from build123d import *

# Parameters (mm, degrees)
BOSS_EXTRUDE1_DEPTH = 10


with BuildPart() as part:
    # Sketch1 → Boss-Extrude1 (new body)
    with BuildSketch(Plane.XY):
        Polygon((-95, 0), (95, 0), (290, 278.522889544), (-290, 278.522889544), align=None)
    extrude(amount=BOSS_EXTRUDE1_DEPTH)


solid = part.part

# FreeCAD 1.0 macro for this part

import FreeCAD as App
import Part
import Sketcher
from FreeCAD import Vector

doc = App.newDocument("Part")
body = doc.addObject("PartDesign::Body", "Body")

# Sketch on XY plane
sketch1 = doc.addObject("Sketcher::SketchObject", "Sketch")
body.addObject(sketch1)
sketch1.AttachmentSupport = (doc.XY_Plane, [""])
sketch1.MapMode = "FlatFace"
sketch1.addGeometry(Part.LineSegment(Vector(-95, 0, 0), Vector(95, 0, 0)), False)
sketch1.addGeometry(Part.LineSegment(Vector(95, 0, 0), Vector(290, 279, 0)), False)
sketch1.addGeometry(Part.LineSegment(Vector(290, 279, 0), Vector(-290, 279, 0)), False)
sketch1.addGeometry(Part.LineSegment(Vector(-290, 279, 0), Vector(-95, 0, 0)), False)
sketch1.addConstraint(Sketcher.Constraint("Coincident", 0, 2, 1, 1))
sketch1.addConstraint(Sketcher.Constraint("Coincident", 1, 2, 2, 1))
sketch1.addConstraint(Sketcher.Constraint("Coincident", 2, 2, 3, 1))
sketch1.addConstraint(Sketcher.Constraint("Coincident", 3, 2, 0, 1))
sketch1.addConstraint(Sketcher.Constraint("Horizontal", 0))
sketch1.addConstraint(Sketcher.Constraint("Horizontal", 2))
sketch1.addConstraint(Sketcher.Constraint("Symmetric", 0, 2, 3, 2, -1, 1))
sketch1.addConstraint(Sketcher.Constraint("Equal", 1, 3))
sketch1.addConstraint(Sketcher.Constraint("DistanceX", 0, 1, 0, 2, 190.0))
sketch1.addConstraint(Sketcher.Constraint("DistanceX", 2, 2, 2, 1, 580.0))
sketch1.addConstraint(Sketcher.Constraint("Distance", 1, 340.0))
pad1 = doc.addObject("PartDesign::Pad", "Pad")
body.addObject(pad1)
pad1.Profile = sketch1
pad1.Length = 10

doc.recompute()
